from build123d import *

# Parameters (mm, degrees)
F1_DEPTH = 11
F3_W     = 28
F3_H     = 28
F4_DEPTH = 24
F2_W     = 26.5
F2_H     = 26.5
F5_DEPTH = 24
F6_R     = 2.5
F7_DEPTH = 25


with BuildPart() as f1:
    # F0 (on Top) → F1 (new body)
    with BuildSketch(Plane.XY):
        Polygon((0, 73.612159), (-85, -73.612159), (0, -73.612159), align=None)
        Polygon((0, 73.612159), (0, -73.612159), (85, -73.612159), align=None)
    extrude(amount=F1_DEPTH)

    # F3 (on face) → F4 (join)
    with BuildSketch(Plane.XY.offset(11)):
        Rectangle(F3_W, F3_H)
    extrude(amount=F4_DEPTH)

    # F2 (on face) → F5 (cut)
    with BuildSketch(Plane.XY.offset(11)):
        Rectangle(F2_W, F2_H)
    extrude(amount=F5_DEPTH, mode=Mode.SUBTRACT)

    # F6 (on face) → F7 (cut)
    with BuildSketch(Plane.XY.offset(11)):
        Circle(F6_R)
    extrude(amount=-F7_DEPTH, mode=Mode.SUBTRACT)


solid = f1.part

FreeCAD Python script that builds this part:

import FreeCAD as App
import Part
import Sketcher
from FreeCAD import Vector
Q = App.Units.Quantity


def add_polygon(sketch, points):
    """Adds a closed chain of lines whose ends are joined by coincident constraints."""
    first, n = sketch.GeometryCount, len(points)
    for a, b in zip(points, points[1:] + points[:1]):
        sketch.addGeometry(Part.LineSegment(App.Vector(*a, 0), App.Vector(*b, 0)), False)
    for i in range(n):
        sketch.addConstraint(Sketcher.Constraint("Coincident", first + i, 2, first + (i + 1) % n, 1))

doc = App.newDocument("Part")
body = doc.addObject("PartDesign::Body", "Body")

sketch1 = doc.addObject("Sketcher::SketchObject", "Sketch")
body.addObject(sketch1)
sketch1.AttachmentSupport = (doc.XY_Plane, [""])
sketch1.MapMode = "FlatFace"
add_polygon(sketch1, [(0, 73.612159), (-85, -73.612159), (85, -73.612159)])
sketch1.addConstraint(Sketcher.Constraint("Horizontal", 1))
sketch1.addConstraint(Sketcher.Constraint("PointOnObject", 2, 2, -2))
sketch1.addConstraint(Sketcher.Constraint("Equal", 0, 2))
sketch1.addConstraint(Sketcher.Constraint("DistanceX", 1, 1, 1, 2, 170.0))
sketch1.addConstraint(Sketcher.Constraint("Angle", 0, Q("-120 deg")))
sketch1.addConstraint(Sketcher.Constraint("DistanceY", 0, 2, -1, 1, 73.612159))
pad1 = doc.addObject("PartDesign::Pad", "Pad")
body.addObject(pad1)
pad1.Profile = sketch1
pad1.Length = 11

sketch2 = doc.addObject("Sketcher::SketchObject", "Sketch001")
body.addObject(sketch2)
sketch2.AttachmentSupport = (doc.XY_Plane, [""])
sketch2.MapMode = "FlatFace"
sketch2.AttachmentOffset = App.Placement(Vector(0, 0, 11), App.Rotation())
add_polygon(sketch2, [(-14, 14), (-14, -14), (14, -14), (14, 14)])
sketch2.addConstraint(Sketcher.Constraint("Vertical", 0))
sketch2.addConstraint(Sketcher.Constraint("Horizontal", 1))
sketch2.addConstraint(Sketcher.Constraint("Vertical", 2))
sketch2.addConstraint(Sketcher.Constraint("Horizontal", 3))
sketch2.addConstraint(Sketcher.Constraint("Symmetric", 0, 2, 2, 2, -1, 1))
sketch2.addConstraint(Sketcher.Constraint("Equal", 3, 0))
sketch2.addConstraint(Sketcher.Constraint("DistanceX", 1, 1, 1, 2, 28.0))
pad2 = doc.addObject("PartDesign::Pad", "Pad001")
body.addObject(pad2)
pad2.Profile = sketch2
pad2.Length = 24

sketch3 = doc.addObject("Sketcher::SketchObject", "Sketch002")
body.addObject(sketch3)
sketch3.AttachmentSupport = (doc.XY_Plane, [""])
sketch3.MapMode = "FlatFace"
sketch3.AttachmentOffset = App.Placement(Vector(0, 0, 11), App.Rotation())
add_polygon(sketch3, [(-13.25, 13.25), (-13.25, -13.25), (13.25, -13.25), (13.25, 13.25)])
sketch3.addConstraint(Sketcher.Constraint("Vertical", 0))
sketch3.addConstraint(Sketcher.Constraint("Horizontal", 1))
sketch3.addConstraint(Sketcher.Constraint("Vertical", 2))
sketch3.addConstraint(Sketcher.Constraint("Horizontal", 3))
sketch3.addConstraint(Sketcher.Constraint("Symmetric", 0, 2, 2, 2, -1, 1))
sketch3.addConstraint(Sketcher.Constraint("Equal", 3, 0))
sketch3.addConstraint(Sketcher.Constraint("DistanceX", 1, 1, 1, 2, 26.5))
pocket1 = doc.addObject("PartDesign::Pocket", "Pocket")
body.addObject(pocket1)
pocket1.Profile = sketch3
pocket1.Length = 24
pocket1.Reversed = True

sketch4 = doc.addObject("Sketcher::SketchObject", "Sketch003")
body.addObject(sketch4)
sketch4.AttachmentSupport = (doc.XY_Plane, [""])
sketch4.MapMode = "FlatFace"
sketch4.AttachmentOffset = App.Placement(Vector(0, 0, 11), App.Rotation())
sketch4.addGeometry(Part.Circle(Vector(0, 0, 0), Vector(0, 0, 1), 2.5), False)
sketch4.addConstraint(Sketcher.Constraint("Coincident", 0, 3, -1, 1))
sketch4.addConstraint(Sketcher.Constraint("Diameter", 0, 5.0))
pocket2 = doc.addObject("PartDesign::Pocket", "Pocket001")
body.addObject(pocket2)
pocket2.Profile = sketch4
pocket2.Length = 25

doc.recompute()
